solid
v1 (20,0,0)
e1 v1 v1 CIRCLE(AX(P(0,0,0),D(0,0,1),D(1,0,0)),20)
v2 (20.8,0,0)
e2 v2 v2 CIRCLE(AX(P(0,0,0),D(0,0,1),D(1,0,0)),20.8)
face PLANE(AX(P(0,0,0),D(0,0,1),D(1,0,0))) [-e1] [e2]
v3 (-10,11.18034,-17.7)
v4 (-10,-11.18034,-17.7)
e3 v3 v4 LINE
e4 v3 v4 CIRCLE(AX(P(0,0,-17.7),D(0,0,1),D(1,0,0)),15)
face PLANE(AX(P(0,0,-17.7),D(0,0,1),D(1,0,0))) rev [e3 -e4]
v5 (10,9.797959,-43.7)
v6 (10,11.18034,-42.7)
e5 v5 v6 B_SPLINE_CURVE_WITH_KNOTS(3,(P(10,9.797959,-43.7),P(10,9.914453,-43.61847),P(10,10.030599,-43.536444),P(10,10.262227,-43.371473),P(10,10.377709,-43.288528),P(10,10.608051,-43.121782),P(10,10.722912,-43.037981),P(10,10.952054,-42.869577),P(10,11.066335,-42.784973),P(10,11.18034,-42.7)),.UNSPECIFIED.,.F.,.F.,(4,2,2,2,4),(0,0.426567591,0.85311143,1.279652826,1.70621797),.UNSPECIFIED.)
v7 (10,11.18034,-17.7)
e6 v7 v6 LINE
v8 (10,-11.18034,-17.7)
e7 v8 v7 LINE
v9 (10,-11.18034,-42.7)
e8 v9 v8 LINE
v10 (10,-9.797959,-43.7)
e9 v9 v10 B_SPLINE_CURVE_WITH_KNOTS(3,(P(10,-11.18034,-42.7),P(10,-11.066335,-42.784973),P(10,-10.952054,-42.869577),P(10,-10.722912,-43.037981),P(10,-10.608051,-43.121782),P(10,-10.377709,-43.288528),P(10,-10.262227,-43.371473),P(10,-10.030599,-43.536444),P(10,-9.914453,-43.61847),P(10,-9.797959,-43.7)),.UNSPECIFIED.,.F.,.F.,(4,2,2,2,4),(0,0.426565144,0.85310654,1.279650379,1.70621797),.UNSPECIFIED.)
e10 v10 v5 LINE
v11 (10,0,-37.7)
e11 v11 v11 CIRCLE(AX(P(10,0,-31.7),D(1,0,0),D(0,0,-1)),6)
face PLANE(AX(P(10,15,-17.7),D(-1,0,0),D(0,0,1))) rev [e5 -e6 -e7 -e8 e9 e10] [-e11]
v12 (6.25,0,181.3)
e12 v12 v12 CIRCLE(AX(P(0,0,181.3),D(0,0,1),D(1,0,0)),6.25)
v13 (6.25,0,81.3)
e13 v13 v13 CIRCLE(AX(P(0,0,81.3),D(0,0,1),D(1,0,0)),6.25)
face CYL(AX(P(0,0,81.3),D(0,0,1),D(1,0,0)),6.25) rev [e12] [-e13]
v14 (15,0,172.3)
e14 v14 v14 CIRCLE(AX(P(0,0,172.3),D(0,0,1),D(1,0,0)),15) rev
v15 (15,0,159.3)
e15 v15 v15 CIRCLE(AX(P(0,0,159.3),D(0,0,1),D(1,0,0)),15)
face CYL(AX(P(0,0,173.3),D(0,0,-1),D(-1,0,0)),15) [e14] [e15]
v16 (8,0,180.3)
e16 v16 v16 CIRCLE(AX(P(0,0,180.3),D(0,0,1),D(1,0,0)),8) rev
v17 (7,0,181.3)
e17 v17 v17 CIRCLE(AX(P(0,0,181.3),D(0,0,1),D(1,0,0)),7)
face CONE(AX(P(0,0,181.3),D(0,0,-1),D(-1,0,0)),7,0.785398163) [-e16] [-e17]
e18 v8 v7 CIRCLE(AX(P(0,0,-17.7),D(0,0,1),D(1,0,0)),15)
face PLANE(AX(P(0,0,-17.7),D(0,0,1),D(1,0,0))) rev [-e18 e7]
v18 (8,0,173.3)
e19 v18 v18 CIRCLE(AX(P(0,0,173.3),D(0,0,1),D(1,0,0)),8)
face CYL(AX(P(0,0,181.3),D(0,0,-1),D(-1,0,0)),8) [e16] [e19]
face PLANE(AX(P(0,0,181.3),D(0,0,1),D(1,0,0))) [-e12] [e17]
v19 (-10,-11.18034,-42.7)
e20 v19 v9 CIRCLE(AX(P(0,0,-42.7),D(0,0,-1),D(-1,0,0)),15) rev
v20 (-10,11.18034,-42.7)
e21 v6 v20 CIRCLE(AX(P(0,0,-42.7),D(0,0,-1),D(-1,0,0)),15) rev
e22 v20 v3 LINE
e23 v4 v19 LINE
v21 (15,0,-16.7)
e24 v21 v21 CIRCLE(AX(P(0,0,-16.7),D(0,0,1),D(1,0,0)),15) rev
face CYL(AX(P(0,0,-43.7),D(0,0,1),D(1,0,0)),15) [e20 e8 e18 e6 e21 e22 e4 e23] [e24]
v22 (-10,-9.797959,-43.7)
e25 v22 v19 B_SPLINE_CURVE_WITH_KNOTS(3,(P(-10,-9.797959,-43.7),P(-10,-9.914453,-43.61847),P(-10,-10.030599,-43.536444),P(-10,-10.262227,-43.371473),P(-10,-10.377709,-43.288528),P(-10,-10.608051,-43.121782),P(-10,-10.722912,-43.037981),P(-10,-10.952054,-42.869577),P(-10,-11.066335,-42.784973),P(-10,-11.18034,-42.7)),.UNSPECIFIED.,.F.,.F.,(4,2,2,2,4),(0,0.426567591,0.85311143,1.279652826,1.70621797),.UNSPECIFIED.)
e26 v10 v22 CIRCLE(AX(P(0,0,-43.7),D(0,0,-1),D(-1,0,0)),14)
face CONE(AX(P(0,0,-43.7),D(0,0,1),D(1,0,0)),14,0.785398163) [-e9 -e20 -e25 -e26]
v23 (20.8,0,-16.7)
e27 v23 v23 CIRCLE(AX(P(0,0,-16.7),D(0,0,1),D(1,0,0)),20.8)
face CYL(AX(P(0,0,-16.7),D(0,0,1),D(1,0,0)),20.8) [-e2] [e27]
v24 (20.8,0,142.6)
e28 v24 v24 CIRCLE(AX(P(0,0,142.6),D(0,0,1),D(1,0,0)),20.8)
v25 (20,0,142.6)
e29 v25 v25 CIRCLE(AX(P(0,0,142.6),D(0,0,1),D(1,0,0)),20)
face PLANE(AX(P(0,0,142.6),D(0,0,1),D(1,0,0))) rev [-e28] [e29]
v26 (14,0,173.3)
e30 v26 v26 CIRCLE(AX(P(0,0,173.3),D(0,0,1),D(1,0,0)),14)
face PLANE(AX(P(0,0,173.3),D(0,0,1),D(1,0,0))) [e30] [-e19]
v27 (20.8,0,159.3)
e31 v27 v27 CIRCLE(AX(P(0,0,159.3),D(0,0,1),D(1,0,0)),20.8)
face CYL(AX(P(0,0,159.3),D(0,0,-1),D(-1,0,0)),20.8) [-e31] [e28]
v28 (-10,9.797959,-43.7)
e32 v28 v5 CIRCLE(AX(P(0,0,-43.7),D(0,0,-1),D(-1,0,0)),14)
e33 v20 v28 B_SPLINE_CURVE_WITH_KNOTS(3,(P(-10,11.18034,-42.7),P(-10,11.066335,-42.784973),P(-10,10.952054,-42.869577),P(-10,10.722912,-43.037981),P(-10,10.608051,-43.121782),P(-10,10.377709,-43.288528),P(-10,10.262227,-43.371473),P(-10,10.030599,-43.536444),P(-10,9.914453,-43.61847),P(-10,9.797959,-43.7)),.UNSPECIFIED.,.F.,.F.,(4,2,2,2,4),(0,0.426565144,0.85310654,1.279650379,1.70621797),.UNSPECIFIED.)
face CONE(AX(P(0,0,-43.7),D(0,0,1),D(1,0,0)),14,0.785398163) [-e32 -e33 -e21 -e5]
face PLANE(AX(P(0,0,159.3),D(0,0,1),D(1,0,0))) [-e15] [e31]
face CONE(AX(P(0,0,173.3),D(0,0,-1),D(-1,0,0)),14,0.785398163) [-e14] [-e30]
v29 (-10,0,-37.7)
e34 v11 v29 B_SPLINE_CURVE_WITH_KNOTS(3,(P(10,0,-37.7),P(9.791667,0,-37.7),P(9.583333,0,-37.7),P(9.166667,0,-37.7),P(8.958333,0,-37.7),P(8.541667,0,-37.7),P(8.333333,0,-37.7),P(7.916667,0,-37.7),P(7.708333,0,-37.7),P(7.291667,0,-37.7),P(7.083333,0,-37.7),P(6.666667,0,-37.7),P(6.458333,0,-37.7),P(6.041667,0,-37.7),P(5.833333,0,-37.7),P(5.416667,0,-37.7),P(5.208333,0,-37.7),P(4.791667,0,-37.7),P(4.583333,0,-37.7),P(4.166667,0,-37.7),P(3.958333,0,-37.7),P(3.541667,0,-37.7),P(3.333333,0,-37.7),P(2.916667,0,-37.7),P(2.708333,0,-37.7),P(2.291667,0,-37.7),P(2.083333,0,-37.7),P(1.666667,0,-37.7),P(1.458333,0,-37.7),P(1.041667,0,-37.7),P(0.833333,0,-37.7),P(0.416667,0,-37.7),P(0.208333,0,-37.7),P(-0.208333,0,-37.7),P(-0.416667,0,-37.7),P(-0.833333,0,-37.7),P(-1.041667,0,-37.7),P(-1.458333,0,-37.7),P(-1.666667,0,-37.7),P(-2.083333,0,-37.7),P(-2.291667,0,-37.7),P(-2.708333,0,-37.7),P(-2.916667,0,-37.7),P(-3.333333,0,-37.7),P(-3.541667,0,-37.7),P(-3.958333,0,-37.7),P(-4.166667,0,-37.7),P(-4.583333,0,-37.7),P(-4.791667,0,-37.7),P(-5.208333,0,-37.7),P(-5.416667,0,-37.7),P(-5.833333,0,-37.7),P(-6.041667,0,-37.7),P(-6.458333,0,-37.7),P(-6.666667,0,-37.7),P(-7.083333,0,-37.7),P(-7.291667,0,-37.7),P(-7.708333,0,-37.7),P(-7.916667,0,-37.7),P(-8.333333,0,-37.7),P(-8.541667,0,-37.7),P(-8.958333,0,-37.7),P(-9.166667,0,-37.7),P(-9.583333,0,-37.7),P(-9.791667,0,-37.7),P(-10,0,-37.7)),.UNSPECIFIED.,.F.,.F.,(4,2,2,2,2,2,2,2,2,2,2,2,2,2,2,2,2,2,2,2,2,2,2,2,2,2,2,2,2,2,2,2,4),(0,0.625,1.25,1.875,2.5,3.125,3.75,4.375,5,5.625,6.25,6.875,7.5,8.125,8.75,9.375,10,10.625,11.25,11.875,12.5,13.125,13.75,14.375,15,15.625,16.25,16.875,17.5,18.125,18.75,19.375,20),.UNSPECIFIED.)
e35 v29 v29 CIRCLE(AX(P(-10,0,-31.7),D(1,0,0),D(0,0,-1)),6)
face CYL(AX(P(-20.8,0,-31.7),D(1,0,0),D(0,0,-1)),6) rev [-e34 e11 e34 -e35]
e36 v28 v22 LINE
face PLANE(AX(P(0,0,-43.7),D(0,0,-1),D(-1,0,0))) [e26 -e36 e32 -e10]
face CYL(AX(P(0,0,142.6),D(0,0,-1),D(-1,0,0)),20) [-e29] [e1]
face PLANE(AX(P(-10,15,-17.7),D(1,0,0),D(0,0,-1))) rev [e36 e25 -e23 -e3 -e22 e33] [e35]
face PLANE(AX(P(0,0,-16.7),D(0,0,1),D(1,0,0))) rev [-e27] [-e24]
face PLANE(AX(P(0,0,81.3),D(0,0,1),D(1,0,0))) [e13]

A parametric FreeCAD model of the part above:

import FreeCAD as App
import Part
import Sketcher

V = App.Vector


def edges_at(feature, points):
    """Names of the edges that pass closest to the given points."""
    edges = feature.Shape.Edges
    near = lambda p: min(range(len(edges)), key=lambda i: edges[i].distToShape(Part.Vertex(*p))[0])
    return sorted({f"Edge{near(p) + 1}" for p in points})


def add_polygon(sketch, points):
    """Adds a closed chain of lines whose ends are joined by coincident constraints."""
    first, n = sketch.GeometryCount, len(points)
    for a, b in zip(points, points[1:] + points[:1]):
        sketch.addGeometry(Part.LineSegment(App.Vector(*a, 0), App.Vector(*b, 0)), False)
    for i in range(n):
        sketch.addConstraint(Sketcher.Constraint("Coincident", first + i, 2, first + (i + 1) % n, 1))

doc = App.newDocument("Part")
body = doc.addObject("PartDesign::Body", "Body")

sketch1 = doc.addObject("Sketcher::SketchObject", "Sketch")
body.addObject(sketch1)
sketch1.AttachmentSupport = (doc.XY_Plane, [""])
sketch1.MapMode = "FlatFace"
sketch1.addGeometry(Part.Circle(V(0, 0, 0), V(0, 0, 1), 20), False)
sketch1.addConstraint([
    Sketcher.Constraint("Coincident", 0, 3, -1, 1),
    Sketcher.Constraint("Diameter", 0, 40.0),
])
pad1 = doc.addObject("PartDesign::Pad", "Pad")
body.addObject(pad1)
pad1.Profile = sketch1
pad1.Length = 142.6

sketch2 = doc.addObject("Sketcher::SketchObject", "Sketch001")
body.addObject(sketch2)
sketch2.AttachmentSupport = (doc.XY_Plane, [""])
sketch2.MapMode = "FlatFace"
sketch2.AttachmentOffset = App.Placement(V(0, 0, 142.6), App.Rotation())
sketch2.addGeometry(Part.Circle(V(0, 0, 0), V(0, 0, 1), 21), False)
sketch2.addConstraint([
    Sketcher.Constraint("Coincident", 0, 3, -1, 1),
    Sketcher.Constraint("Diameter", 0, 41.6),
])
pad2 = doc.addObject("PartDesign::Pad", "Pad001")
body.addObject(pad2)
pad2.Profile = sketch2
pad2.Length = 16.7

sketch3 = doc.addObject("Sketcher::SketchObject", "Sketch002")
body.addObject(sketch3)
sketch3.AttachmentSupport = (doc.XY_Plane, [""])
sketch3.MapMode = "FlatFace"
sketch3.AttachmentOffset = App.Placement(V(0, 0, -16.7), App.Rotation())
sketch3.addGeometry(Part.Circle(V(0, 0, 0), V(0, 0, 1), 21), False)
sketch3.addConstraint([
    Sketcher.Constraint("Coincident", 0, 3, -1, 1),
    Sketcher.Constraint("Diameter", 0, 41.6),
])
pad3 = doc.addObject("PartDesign::Pad", "Pad002")
body.addObject(pad3)
pad3.Profile = sketch3
pad3.Length = 16.7

sketch4 = doc.addObject("Sketcher::SketchObject", "Sketch003")
body.addObject(sketch4)
sketch4.AttachmentSupport = (doc.XY_Plane, [""])
sketch4.MapMode = "FlatFace"
sketch4.AttachmentOffset = App.Placement(V(0, 0, -16.7), App.Rotation())
sketch4.addGeometry(Part.Circle(V(0, 0, 0), V(0, 0, 1), 15), False)
sketch4.addConstraint([
    Sketcher.Constraint("Coincident", 0, 3, -1, 1),
    Sketcher.Constraint("Diameter", 0, 30.0),
])
pad4 = doc.addObject("PartDesign::Pad", "Pad003")
body.addObject(pad4)
pad4.Profile = sketch4
pad4.Length = 27
pad4.Reversed = True

sketch5 = doc.addObject("Sketcher::SketchObject", "Sketch004")
body.addObject(sketch5)
sketch5.AttachmentSupport = (doc.XY_Plane, [""])
sketch5.MapMode = "FlatFace"
sketch5.AttachmentOffset = App.Placement(V(0, 0, -43.7), App.Rotation())
add_polygon(sketch5, [(16, 15), (16, -15), (10, -15), (10, 15)])
add_polygon(sketch5, [(-10, 15), (-10, -15), (-16, -15), (-16, 15)])
sketch5.addConstraint([
    Sketcher.Constraint("Vertical", 0),
    Sketcher.Constraint("Horizontal", 1),
    Sketcher.Constraint("Vertical", 2),
    Sketcher.Constraint("Horizontal", 3),
    Sketcher.Constraint("Vertical", 4),
    Sketcher.Constraint("Horizontal", 5),
    Sketcher.Constraint("Vertical", 6),
    Sketcher.Constraint("Horizontal", 7),
    Sketcher.Constraint("Symmetric", 2, 2, 4, 2, -1, 1),
    Sketcher.Constraint("Symmetric", 0, 2, 6, 2, -1, 1),
    Sketcher.Constraint("Horizontal", 1, 2, 4, 2),
    Sketcher.Constraint("DistanceX", 1, 2, 1, 1, 6.0),
    Sketcher.Constraint("DistanceY", 0, 2, 0, 1, 30.0),
    Sketcher.Constraint("DistanceX", -1, 1, 0, 2, 16.0),
])
pocket1 = doc.addObject("PartDesign::Pocket", "Pocket")
body.addObject(pocket1)
pocket1.Profile = sketch5
pocket1.Length = 26
pocket1.Reversed = True

sketch6 = doc.addObject("Sketcher::SketchObject", "Sketch005")
body.addObject(sketch6)
sketch6.AttachmentSupport = (doc.YZ_Plane, [""])
sketch6.MapMode = "FlatFace"
sketch6.AttachmentOffset = App.Placement(V(0, 0, 10), App.Rotation())
sketch6.addGeometry(Part.Circle(V(0, -32, 0), V(0, 0, 1), 6), False)
sketch6.addConstraint([
    Sketcher.Constraint("PointOnObject", 0, 3, -2),
    Sketcher.Constraint("Diameter", 0, 12.0),
    Sketcher.Constraint("DistanceY", 0, 3, -1, 1, 31.7),
])
pocket2 = doc.addObject("PartDesign::Pocket", "Pocket001")
body.addObject(pocket2)
pocket2.Profile = sketch6
pocket2.Type = "ThroughAll"
doc.recompute()

chamfer = doc.addObject("PartDesign::Chamfer", "Chamfer")
body.addObject(chamfer)
chamfer.Base = (pocket2, edges_at(pocket2, [(0, -15, -43.7), (0, 15, -43.7)]))
chamfer.Size = 1

sketch7 = doc.addObject("Sketcher::SketchObject", "Sketch006")
body.addObject(sketch7)
sketch7.AttachmentSupport = (doc.XY_Plane, [""])
sketch7.MapMode = "FlatFace"
sketch7.AttachmentOffset = App.Placement(V(0, 0, 173.3), App.Rotation())
sketch7.addGeometry(Part.Circle(V(0, 0, 0), V(0, 0, 1), 15), False)
sketch7.addConstraint([
    Sketcher.Constraint("Coincident", 0, 3, -1, 1),
    Sketcher.Constraint("Diameter", 0, 30.0),
])
pad5 = doc.addObject("PartDesign::Pad", "Pad004")
body.addObject(pad5)
pad5.Profile = sketch7
pad5.Length = 14
pad5.Reversed = True

sketch8 = doc.addObject("Sketcher::SketchObject", "Sketch007")
body.addObject(sketch8)
sketch8.AttachmentSupport = (doc.XY_Plane, [""])
sketch8.MapMode = "FlatFace"
sketch8.AttachmentOffset = App.Placement(V(0, 0, 173.3), App.Rotation())
sketch8.addGeometry(Part.Circle(V(0, 0, 0), V(0, 0, 1), 8), False)
sketch8.addConstraint([
    Sketcher.Constraint("Coincident", 0, 3, -1, 1),
    Sketcher.Constraint("Diameter", 0, 16.0),
])
pad6 = doc.addObject("PartDesign::Pad", "Pad005")
body.addObject(pad6)
pad6.Profile = sketch8
pad6.Length = 8
doc.recompute()

chamfer2 = doc.addObject("PartDesign::Chamfer", "Chamfer001")
body.addObject(chamfer2)
chamfer2.Base = (pad6, edges_at(pad6, [(-15, 0, 173.3), (-8, 0, 181.3)]))
chamfer2.Size = 1

sketch9 = doc.addObject("Sketcher::SketchObject", "Sketch008")
body.addObject(sketch9)
sketch9.AttachmentSupport = (doc.XY_Plane, [""])
sketch9.MapMode = "FlatFace"
sketch9.AttachmentOffset = App.Placement(V(0, 0, 181.3), App.Rotation())
sketch9.addGeometry(Part.Circle(V(0, 0, 0), V(0, 0, 1), 6), False)
sketch9.addConstraint([
    Sketcher.Constraint("Coincident", 0, 3, -1, 1),
    Sketcher.Constraint("Diameter", 0, 12.5),
])
pocket3 = doc.addObject("PartDesign::Pocket", "Pocket002")
body.addObject(pocket3)
pocket3.Profile = sketch9
pocket3.Length = 100

doc.recompute()
